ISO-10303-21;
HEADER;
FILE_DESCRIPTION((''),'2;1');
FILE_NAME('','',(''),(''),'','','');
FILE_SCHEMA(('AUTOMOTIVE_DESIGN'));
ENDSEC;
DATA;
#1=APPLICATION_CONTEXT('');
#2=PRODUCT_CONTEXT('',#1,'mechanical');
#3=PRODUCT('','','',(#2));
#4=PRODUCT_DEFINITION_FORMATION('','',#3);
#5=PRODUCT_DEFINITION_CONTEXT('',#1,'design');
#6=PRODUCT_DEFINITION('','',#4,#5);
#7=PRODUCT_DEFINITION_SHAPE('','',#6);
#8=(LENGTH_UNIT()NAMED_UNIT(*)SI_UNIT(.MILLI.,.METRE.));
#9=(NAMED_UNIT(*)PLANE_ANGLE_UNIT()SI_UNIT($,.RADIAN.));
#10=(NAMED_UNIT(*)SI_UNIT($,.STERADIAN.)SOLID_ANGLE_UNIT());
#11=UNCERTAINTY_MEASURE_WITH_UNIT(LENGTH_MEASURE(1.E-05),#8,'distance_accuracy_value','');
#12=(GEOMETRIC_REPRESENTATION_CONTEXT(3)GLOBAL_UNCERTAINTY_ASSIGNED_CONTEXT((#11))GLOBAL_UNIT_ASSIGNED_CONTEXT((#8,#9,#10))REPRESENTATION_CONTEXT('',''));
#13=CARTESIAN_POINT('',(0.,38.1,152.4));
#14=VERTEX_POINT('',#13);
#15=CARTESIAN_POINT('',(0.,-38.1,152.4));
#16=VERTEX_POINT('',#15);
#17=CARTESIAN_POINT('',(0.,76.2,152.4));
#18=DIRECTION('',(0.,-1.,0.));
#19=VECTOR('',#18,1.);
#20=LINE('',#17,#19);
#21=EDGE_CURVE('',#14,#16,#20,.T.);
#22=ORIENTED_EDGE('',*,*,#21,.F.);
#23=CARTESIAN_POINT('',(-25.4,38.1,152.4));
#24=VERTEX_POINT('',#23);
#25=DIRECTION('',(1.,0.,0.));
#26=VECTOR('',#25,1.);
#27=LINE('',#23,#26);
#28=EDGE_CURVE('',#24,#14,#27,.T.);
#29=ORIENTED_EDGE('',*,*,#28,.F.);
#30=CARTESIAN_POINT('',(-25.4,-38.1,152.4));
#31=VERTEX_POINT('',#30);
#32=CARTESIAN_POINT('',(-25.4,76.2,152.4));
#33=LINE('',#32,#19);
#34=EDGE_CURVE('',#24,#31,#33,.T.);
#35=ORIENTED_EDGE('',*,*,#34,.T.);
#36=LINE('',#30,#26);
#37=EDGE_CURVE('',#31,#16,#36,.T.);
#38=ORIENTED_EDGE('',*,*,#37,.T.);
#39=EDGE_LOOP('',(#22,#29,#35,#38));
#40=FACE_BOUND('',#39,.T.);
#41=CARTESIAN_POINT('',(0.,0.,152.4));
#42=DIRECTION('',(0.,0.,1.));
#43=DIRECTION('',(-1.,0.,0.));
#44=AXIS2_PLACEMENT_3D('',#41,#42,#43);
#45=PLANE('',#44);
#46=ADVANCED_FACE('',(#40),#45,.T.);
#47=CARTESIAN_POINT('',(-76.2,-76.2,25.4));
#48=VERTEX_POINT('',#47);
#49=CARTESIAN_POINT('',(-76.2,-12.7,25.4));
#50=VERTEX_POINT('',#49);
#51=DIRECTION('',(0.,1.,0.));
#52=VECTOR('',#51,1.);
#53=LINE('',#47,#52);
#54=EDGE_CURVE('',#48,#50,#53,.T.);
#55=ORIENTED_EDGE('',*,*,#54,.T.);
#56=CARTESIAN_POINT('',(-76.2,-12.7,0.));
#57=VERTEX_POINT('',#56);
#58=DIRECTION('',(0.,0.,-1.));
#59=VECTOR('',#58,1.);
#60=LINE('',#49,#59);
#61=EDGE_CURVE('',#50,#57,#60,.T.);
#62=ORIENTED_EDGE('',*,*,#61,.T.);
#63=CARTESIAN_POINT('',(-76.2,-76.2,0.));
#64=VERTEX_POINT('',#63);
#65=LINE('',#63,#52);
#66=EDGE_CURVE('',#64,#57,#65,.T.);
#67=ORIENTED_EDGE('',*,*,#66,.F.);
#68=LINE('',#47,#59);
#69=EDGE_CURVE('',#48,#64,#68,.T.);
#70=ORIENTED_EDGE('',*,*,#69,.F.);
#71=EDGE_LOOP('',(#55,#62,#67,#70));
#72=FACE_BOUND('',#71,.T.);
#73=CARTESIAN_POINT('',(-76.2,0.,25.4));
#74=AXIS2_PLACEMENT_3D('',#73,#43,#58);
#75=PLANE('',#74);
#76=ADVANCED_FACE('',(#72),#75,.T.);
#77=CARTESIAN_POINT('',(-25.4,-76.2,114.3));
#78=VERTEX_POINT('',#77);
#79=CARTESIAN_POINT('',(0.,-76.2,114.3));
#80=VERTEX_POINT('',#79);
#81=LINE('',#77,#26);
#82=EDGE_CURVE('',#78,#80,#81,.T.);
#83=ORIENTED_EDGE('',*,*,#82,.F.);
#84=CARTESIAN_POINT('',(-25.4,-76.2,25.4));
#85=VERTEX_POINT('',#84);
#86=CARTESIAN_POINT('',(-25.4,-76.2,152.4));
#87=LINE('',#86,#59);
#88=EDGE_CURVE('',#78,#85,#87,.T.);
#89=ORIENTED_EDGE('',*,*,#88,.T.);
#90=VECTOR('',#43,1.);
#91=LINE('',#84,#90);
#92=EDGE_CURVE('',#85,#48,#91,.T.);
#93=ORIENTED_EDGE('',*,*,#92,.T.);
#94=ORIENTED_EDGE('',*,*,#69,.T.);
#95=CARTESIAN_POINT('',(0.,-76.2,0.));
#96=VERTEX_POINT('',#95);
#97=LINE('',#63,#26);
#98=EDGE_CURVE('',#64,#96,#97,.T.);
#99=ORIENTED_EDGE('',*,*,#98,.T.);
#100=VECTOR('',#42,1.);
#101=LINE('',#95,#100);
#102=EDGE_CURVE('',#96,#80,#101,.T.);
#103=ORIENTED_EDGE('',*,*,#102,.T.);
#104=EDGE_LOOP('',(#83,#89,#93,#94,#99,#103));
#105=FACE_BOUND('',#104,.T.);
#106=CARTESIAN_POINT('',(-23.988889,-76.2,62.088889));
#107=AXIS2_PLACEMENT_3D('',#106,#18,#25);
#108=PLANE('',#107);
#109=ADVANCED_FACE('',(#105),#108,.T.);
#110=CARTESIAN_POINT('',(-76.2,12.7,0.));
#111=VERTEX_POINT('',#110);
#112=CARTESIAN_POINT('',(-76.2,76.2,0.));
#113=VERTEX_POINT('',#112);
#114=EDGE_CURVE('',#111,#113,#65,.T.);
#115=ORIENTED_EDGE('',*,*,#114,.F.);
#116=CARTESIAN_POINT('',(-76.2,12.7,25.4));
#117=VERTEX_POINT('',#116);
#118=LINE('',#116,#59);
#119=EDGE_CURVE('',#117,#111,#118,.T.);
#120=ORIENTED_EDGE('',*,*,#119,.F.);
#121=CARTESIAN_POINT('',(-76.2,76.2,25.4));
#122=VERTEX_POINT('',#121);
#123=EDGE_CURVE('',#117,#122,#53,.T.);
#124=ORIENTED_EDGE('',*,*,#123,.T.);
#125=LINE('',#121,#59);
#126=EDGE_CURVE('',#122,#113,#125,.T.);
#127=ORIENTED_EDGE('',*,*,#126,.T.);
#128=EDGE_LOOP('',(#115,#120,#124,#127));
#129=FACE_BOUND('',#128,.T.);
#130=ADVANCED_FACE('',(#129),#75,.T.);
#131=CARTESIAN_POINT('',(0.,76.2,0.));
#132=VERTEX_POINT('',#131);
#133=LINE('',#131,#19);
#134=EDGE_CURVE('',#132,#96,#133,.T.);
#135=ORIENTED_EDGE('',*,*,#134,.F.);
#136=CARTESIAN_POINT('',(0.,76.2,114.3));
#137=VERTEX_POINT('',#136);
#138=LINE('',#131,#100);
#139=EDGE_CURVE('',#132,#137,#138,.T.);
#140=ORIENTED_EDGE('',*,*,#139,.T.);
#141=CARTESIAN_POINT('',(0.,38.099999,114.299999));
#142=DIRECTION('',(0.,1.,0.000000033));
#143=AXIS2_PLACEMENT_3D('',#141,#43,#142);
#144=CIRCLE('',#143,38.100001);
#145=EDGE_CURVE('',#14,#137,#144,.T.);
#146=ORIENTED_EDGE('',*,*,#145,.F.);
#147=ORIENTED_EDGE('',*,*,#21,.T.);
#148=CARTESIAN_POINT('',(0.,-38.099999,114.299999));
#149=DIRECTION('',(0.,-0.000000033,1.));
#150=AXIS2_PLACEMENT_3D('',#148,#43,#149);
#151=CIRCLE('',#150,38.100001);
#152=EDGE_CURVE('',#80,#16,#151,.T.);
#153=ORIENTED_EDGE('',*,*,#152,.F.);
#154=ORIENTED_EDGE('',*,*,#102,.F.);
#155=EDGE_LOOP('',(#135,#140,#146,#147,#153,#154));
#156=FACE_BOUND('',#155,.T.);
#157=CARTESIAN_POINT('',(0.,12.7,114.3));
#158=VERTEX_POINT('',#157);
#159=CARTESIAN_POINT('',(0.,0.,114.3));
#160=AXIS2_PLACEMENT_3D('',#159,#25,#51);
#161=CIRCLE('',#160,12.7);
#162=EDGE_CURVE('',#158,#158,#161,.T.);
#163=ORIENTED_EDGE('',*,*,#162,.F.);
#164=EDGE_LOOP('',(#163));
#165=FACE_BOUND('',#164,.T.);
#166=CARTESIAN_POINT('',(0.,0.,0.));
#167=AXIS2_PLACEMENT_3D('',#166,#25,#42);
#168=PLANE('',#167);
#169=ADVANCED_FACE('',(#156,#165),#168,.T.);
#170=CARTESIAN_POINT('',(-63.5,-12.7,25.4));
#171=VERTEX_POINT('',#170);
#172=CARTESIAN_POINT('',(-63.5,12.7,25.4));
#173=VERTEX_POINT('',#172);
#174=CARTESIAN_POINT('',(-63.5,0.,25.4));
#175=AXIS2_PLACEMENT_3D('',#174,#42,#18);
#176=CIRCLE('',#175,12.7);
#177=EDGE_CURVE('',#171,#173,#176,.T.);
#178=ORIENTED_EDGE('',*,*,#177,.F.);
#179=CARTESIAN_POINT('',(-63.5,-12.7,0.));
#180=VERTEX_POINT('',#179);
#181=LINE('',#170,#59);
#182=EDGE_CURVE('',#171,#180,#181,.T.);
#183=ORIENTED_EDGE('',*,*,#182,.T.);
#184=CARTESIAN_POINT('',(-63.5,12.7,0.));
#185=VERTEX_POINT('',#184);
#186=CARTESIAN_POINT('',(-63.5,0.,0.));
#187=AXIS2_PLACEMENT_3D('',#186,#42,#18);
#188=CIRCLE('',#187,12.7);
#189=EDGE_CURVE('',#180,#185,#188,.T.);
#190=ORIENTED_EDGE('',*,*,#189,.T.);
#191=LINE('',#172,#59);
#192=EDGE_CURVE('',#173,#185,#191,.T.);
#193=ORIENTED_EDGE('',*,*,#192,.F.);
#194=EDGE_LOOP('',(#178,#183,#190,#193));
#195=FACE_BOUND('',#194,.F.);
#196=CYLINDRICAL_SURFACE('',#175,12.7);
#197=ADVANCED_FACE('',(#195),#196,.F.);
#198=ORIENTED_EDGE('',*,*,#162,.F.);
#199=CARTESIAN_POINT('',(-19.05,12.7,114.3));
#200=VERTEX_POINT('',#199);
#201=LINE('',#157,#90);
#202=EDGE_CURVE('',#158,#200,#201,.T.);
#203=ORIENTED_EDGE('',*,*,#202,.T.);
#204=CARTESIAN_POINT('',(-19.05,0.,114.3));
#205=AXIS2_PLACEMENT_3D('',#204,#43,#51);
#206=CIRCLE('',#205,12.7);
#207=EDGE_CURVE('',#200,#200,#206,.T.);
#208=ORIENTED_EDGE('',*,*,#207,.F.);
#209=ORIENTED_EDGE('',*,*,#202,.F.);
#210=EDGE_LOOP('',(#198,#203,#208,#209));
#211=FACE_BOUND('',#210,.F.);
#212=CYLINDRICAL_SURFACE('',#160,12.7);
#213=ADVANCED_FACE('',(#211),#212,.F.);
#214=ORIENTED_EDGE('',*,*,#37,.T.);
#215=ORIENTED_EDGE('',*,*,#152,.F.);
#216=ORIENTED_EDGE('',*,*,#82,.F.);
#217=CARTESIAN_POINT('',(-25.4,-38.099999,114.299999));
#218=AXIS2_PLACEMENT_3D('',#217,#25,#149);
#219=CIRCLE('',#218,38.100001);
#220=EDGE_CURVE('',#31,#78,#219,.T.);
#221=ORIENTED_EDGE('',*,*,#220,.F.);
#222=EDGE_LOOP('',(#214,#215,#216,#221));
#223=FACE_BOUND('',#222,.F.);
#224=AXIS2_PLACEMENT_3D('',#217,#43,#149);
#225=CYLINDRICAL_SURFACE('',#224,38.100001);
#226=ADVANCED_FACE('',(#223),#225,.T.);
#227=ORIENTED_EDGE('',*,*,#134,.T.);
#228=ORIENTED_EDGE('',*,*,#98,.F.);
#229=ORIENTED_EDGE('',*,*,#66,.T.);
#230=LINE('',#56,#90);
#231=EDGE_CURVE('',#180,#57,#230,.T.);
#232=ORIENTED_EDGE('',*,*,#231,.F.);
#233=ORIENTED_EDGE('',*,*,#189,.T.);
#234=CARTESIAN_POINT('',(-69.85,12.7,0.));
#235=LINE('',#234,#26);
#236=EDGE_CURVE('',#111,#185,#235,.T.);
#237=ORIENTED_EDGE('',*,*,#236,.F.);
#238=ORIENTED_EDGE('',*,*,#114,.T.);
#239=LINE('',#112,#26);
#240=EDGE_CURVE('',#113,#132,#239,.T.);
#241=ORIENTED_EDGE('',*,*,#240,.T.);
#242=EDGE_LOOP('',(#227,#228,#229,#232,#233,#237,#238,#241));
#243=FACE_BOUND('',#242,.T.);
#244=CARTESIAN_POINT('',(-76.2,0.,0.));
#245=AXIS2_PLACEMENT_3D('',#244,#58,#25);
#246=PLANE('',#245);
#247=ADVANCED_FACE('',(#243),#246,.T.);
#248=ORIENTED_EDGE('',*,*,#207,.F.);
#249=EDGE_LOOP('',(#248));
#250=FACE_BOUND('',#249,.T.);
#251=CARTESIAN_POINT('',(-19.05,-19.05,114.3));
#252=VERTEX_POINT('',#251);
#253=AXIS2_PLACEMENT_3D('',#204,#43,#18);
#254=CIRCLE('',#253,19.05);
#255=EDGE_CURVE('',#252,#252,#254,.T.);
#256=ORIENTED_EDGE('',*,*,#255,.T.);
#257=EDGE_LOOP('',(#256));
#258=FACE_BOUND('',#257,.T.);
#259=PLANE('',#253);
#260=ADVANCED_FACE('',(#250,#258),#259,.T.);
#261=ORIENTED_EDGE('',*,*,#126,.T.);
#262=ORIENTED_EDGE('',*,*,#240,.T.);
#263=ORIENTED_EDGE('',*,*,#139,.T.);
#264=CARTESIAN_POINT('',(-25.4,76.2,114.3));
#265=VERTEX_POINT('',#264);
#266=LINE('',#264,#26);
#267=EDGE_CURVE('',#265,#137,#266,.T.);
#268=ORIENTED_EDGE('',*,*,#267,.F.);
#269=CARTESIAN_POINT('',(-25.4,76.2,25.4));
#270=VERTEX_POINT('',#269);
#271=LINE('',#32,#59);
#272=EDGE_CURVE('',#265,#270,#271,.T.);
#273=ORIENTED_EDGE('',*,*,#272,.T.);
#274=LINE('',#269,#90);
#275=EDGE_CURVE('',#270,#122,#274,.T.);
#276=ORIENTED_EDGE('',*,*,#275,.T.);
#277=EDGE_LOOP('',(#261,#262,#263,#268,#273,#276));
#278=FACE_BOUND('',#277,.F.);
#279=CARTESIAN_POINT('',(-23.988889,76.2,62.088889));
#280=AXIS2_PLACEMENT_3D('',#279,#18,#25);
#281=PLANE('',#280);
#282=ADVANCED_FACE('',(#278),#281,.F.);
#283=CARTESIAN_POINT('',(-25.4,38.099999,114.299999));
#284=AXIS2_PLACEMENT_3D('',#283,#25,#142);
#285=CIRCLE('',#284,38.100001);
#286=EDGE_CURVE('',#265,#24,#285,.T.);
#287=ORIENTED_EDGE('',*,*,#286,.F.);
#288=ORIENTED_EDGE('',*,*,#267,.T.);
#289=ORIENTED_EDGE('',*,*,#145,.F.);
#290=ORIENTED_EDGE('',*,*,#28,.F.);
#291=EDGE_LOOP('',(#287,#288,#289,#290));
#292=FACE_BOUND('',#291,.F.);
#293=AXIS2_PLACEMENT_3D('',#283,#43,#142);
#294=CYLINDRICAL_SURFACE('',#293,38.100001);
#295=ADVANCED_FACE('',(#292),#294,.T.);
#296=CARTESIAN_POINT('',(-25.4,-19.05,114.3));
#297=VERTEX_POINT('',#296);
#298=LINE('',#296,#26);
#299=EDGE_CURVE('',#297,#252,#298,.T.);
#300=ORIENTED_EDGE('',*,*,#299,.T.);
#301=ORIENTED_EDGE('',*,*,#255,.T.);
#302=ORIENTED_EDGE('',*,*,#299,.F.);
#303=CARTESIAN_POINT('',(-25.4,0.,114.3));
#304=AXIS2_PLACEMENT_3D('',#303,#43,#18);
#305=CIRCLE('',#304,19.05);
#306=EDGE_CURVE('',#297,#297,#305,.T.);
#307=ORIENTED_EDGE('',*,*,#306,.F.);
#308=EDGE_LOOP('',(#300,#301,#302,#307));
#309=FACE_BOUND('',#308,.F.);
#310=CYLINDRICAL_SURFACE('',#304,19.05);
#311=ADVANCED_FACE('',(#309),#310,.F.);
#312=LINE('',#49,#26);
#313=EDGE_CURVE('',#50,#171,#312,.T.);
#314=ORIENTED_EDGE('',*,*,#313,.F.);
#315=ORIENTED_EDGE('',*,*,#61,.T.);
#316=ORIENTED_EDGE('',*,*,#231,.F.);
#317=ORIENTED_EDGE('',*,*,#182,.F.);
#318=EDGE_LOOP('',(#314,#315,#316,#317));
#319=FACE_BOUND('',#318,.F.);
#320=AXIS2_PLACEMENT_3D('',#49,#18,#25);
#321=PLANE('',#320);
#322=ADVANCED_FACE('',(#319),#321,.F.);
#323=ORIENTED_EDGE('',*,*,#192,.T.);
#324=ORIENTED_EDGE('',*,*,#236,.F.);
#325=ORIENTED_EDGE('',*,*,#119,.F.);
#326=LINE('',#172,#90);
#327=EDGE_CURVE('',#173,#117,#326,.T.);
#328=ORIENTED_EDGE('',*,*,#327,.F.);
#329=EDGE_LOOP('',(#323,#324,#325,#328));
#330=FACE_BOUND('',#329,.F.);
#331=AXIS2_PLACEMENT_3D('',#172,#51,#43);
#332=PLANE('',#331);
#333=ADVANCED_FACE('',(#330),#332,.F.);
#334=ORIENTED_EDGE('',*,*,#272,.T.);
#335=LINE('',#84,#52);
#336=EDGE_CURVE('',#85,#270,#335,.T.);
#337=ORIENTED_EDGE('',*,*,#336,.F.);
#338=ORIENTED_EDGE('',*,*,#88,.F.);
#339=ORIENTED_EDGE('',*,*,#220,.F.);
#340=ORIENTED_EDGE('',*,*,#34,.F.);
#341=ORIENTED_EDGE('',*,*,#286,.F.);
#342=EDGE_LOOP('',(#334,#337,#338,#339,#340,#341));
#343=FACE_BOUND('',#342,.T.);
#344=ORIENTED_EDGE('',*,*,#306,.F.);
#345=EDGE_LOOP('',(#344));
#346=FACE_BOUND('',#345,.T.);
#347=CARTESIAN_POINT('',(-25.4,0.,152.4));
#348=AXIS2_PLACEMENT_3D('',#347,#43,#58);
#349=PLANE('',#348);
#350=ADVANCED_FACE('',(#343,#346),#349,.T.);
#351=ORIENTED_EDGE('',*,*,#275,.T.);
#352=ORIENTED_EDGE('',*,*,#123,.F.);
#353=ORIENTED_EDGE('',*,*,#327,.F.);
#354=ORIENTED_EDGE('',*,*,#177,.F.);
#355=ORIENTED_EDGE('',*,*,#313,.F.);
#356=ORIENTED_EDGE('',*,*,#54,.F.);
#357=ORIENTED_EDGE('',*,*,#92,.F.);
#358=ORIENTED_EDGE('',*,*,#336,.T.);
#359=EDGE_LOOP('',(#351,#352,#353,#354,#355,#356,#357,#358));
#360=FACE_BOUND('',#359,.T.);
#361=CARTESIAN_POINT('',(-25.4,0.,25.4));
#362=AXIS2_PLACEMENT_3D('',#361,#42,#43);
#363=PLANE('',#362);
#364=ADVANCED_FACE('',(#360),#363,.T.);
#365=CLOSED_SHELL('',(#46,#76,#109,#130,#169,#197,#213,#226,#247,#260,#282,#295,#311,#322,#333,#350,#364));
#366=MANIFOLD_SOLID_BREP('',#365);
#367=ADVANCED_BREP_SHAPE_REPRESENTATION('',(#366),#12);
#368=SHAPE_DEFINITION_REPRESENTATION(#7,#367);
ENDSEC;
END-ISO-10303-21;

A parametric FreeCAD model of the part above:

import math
import FreeCAD as App
import Part
import Sketcher
Q = App.Units.Quantity


def add_polygon(sketch, points):
    """Adds a closed chain of lines whose ends are joined by coincident constraints."""
    first, n = sketch.GeometryCount, len(points)
    for a, b in zip(points, points[1:] + points[:1]):
        sketch.addGeometry(Part.LineSegment(App.Vector(*a, 0), App.Vector(*b, 0)), False)
    for i in range(n):
        sketch.addConstraint(Sketcher.Constraint("Coincident", first + i, 2, first + (i + 1) % n, 1))

doc = App.newDocument("Part")
body = doc.addObject("PartDesign::Body", "Body")

sketch1 = doc.addObject("Sketcher::SketchObject", "Sketch")
body.addObject(sketch1)
sketch1.AttachmentSupport = (doc.XZ_Plane, [""])
sketch1.MapMode = "FlatFace"
add_polygon(sketch1, [(-76, 0), (0, 0), (0, 152), (-25, 152), (-25, 25), (-76, 25)])
sketch1.addConstraint(Sketcher.Constraint("Horizontal", 0))
sketch1.addConstraint(Sketcher.Constraint("Vertical", 1))
sketch1.addConstraint(Sketcher.Constraint("Horizontal", 2))
sketch1.addConstraint(Sketcher.Constraint("Vertical", 3))
sketch1.addConstraint(Sketcher.Constraint("Horizontal", 4))
sketch1.addConstraint(Sketcher.Constraint("Vertical", 5))
sketch1.addConstraint(Sketcher.Constraint("Coincident", 0, 2, -1, 1))
sketch1.addConstraint(Sketcher.Constraint("Equal", 2, 5))
sketch1.addConstraint(Sketcher.Constraint("DistanceX", 0, 1, 0, 2, Q("3 in")))
sketch1.addConstraint(Sketcher.Constraint("DistanceX", 2, 2, 2, 1, Q("1 in")))
sketch1.addConstraint(Sketcher.Constraint("DistanceY", 1, 1, 1, 2, Q("6 in")))
pad1 = doc.addObject("PartDesign::Pad", "Pad")
body.addObject(pad1)
pad1.Profile = sketch1
pad1.Length = Q("6 in")
pad1.Midplane = True

sketch2 = doc.addObject("Sketcher::SketchObject", "Sketch001")
body.addObject(sketch2)
sketch2.AttachmentSupport = (doc.YZ_Plane, [""])
sketch2.MapMode = "FlatFace"
sketch2.addGeometry(Part.Circle(App.Vector(0, 114, 0), App.Vector(0, 0, 1), 13), False)
sketch2.addConstraint(Sketcher.Constraint("PointOnObject", 0, 3, -2))
sketch2.addConstraint(Sketcher.Constraint("Diameter", 0, Q("1 in")))
sketch2.addConstraint(Sketcher.Constraint("DistanceY", -1, 1, 0, 3, Q("4.5 in")))
pocket1 = doc.addObject("PartDesign::Pocket", "Pocket")
body.addObject(pocket1)
pocket1.Profile = sketch2
pocket1.Type = "ThroughAll"

sketch3 = doc.addObject("Sketcher::SketchObject", "Sketch002")
body.addObject(sketch3)
sketch3.AttachmentSupport = (doc.XY_Plane, [""])
sketch3.MapMode = "FlatFace"
sketch3.AttachmentOffset = App.Placement(App.Vector(0, 0, 1 * 25.4), App.Rotation())
sketch3.addGeometry(Part.ArcOfCircle(Part.Circle(App.Vector(-64, 0, 0), App.Vector(0, 0, 1), 13), math.radians(-90), math.radians(90)), False)
sketch3.addGeometry(Part.LineSegment(App.Vector(-64, 13, 0), App.Vector(-76, 13, 0)), False)
sketch3.addGeometry(Part.LineSegment(App.Vector(-76, 13, 0), App.Vector(-76, -13, 0)), False)
sketch3.addGeometry(Part.LineSegment(App.Vector(-76, -13, 0), App.Vector(-64, -13, 0)), False)
sketch3.addConstraint(Sketcher.Constraint("Tangent", 0, 2, 1, 1))
sketch3.addConstraint(Sketcher.Constraint("Coincident", 1, 2, 2, 1))
sketch3.addConstraint(Sketcher.Constraint("Coincident", 2, 2, 3, 1))
sketch3.addConstraint(Sketcher.Constraint("Tangent", 3, 2, 0, 1))
sketch3.addConstraint(Sketcher.Constraint("Horizontal", 1))
sketch3.addConstraint(Sketcher.Constraint("Vertical", 2))
sketch3.addConstraint(Sketcher.Constraint("Horizontal", 3))
sketch3.addConstraint(Sketcher.Constraint("PointOnObject", 0, 3, -1))
sketch3.addConstraint(Sketcher.Constraint("Radius", 0, Q("0.5 in")))
sketch3.addConstraint(Sketcher.Constraint("DistanceX", 1, 2, 1, 1, Q("0.5 in")))
sketch3.addConstraint(Sketcher.Constraint("DistanceX", 1, 2, -1, 1, Q("3 in")))
pocket2 = doc.addObject("PartDesign::Pocket", "Pocket001")
body.addObject(pocket2)
pocket2.Profile = sketch3
pocket2.Type = "ThroughAll"

sketch4 = doc.addObject("Sketcher::SketchObject", "Sketch003")
body.addObject(sketch4)
sketch4.AttachmentSupport = (doc.YZ_Plane, [""])
sketch4.MapMode = "FlatFace"
sketch4.AttachmentOffset = App.Placement(App.Vector(0, 0, -1 * 25.4), App.Rotation())
sketch4.addGeometry(Part.Circle(App.Vector(0, 114, 0), App.Vector(0, 0, 1), 19), False)
sketch4.addGeometry(Part.Circle(App.Vector(0, 114, 0), App.Vector(0, 0, 1), 13), False)
sketch4.addConstraint(Sketcher.Constraint("Coincident", 1, 3, 0, 3))
sketch4.addConstraint(Sketcher.Constraint("PointOnObject", 0, 3, -2))
sketch4.addConstraint(Sketcher.Constraint("Diameter", 1, Q("1 in")))
sketch4.addConstraint(Sketcher.Constraint("Diameter", 0, Q("1.5 in")))
sketch4.addConstraint(Sketcher.Constraint("DistanceY", -1, 1, 0, 3, Q("4.5 in")))
pocket3 = doc.addObject("PartDesign::Pocket", "Pocket002")
body.addObject(pocket3)
pocket3.Profile = sketch4
pocket3.Length = Q("0.25 in")
pocket3.Reversed = True

sketch5 = doc.addObject("Sketcher::SketchObject", "Sketch004")
body.addObject(sketch5)
sketch5.AttachmentSupport = (doc.YZ_Plane, [""])
sketch5.MapMode = "FlatFace"
sketch5.AttachmentOffset = App.Placement(App.Vector(0, 0, -1 * 25.4), App.Rotation())
sketch5.addGeometry(Part.ArcOfCircle(Part.Circle(App.Vector(38, 114, 0), App.Vector(0, 0, 1), 38), math.radians(0), math.radians(90)), False)
sketch5.addGeometry(Part.LineSegment(App.Vector(38, 152, 0), App.Vector(76, 152, 0)), False)
sketch5.addGeometry(Part.LineSegment(App.Vector(76, 152, 0), App.Vector(76, 114, 0)), False)
sketch5.addGeometry(Part.ArcOfCircle(Part.Circle(App.Vector(-38, 114, 0), App.Vector(0, 0, 1), 38), math.radians(90), math.radians(180)), False)
sketch5.addGeometry(Part.LineSegment(App.Vector(-76, 114, 0), App.Vector(-76, 152, 0)), False)
sketch5.addGeometry(Part.LineSegment(App.Vector(-76, 152, 0), App.Vector(-38, 152, 0)), False)
sketch5.addConstraint(Sketcher.Constraint("Tangent", 0, 2, 1, 1))
sketch5.addConstraint(Sketcher.Constraint("Coincident", 1, 2, 2, 1))
sketch5.addConstraint(Sketcher.Constraint("Tangent", 2, 2, 0, 1))
sketch5.addConstraint(Sketcher.Constraint("Tangent", 3, 2, 4, 1))
sketch5.addConstraint(Sketcher.Constraint("Coincident", 4, 2, 5, 1))
sketch5.addConstraint(Sketcher.Constraint("Tangent", 5, 2, 3, 1))
sketch5.addConstraint(Sketcher.Constraint("Horizontal", 1))
sketch5.addConstraint(Sketcher.Constraint("Vertical", 2))
sketch5.addConstraint(Sketcher.Constraint("Vertical", 4))
sketch5.addConstraint(Sketcher.Constraint("Horizontal", 5))
sketch5.addConstraint(Sketcher.Constraint("Equal", 0, 3))
sketch5.addConstraint(Sketcher.Constraint("Symmetric", 0, 3, 3, 3, -2))
sketch5.addConstraint(Sketcher.Constraint("Radius", 0, Q("1.5 in")))
sketch5.addConstraint(Sketcher.Constraint("DistanceY", -1, 1, 0, 2, Q("6 in")))
sketch5.addConstraint(Sketcher.Constraint("DistanceX", -1, 1, 1, 2, Q("3 in")))
pocket4 = doc.addObject("PartDesign::Pocket", "Pocket003")
body.addObject(pocket4)
pocket4.Profile = sketch5
pocket4.Type = "ThroughAll"
pocket4.Reversed = True

doc.recompute()
